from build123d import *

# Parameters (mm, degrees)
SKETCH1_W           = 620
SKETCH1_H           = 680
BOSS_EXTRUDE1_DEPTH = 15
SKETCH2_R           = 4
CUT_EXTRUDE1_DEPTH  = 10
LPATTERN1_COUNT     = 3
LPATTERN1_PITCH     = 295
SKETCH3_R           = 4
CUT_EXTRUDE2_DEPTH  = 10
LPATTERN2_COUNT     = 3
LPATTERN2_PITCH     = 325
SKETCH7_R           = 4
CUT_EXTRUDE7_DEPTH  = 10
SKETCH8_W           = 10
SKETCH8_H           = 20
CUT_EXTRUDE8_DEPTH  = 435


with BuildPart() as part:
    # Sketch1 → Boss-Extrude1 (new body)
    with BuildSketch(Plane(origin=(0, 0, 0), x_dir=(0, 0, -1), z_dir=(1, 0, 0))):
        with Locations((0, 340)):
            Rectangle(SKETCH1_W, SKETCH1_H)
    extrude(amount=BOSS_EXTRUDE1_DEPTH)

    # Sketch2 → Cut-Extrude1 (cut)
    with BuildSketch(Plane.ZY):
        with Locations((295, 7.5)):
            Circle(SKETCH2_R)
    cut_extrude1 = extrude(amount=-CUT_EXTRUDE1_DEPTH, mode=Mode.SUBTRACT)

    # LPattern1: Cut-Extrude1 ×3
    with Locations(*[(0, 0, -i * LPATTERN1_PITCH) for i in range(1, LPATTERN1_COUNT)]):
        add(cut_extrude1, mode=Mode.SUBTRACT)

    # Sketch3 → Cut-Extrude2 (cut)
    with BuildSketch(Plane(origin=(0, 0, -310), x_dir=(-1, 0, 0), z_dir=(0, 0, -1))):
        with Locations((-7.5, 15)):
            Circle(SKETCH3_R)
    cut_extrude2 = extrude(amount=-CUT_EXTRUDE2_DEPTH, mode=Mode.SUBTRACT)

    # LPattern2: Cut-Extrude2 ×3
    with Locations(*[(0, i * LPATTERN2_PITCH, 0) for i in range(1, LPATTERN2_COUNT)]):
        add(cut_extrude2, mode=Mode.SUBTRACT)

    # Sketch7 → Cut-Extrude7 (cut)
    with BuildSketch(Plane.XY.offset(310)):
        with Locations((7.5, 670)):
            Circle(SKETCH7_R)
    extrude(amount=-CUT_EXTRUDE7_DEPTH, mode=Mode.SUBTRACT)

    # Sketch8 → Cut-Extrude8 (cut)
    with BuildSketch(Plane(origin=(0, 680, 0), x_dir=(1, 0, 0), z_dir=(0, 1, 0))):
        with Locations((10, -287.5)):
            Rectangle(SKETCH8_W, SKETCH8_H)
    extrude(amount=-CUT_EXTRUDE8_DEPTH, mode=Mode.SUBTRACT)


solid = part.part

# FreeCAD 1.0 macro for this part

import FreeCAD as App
import Part
import Sketcher
from FreeCAD import Vector
Q = App.Units.Quantity

doc = App.newDocument("Part")
params = doc.addObject("Spreadsheet::Sheet", "Params")
for row, (alias, value) in enumerate([
    ("sketch1_width", "680 mm"),
    ("sketch1_height", "620 mm"),
    ("pad1_length", "15 mm"),
    ("sketch2_diameter", "8 mm"),
    ("pocket1_length", "10 mm"),
    ("linearpattern_pitch", "295 mm"),
    ("sketch3_diameter", "8 mm"),
    ("pocket2_length", "10 mm"),
    ("linearpattern2_pitch", "325 mm"),
    ("sketch4_diameter", "8 mm"),
    ("pocket3_length", "10 mm"),
    ("sketch5_width", "10 mm"),
    ("sketch5_height", "20 mm"),
    ("pocket4_length", "435 mm"),
], start=1):
    params.set(f"A{row}", alias)
    params.set(f"B{row}", "=" + value)
    params.setAlias(f"B{row}", alias)

body = doc.addObject("PartDesign::Body", "Body")

# Sketch on YZ plane
sketch1 = body.newObject("Sketcher::SketchObject", "Sketch")
sketch1.AttachmentSupport = (doc.getObject("YZ_Plane"), [""])
sketch1.MapMode = "FlatFace"
sketch1.addGeometry(Part.LineSegment(Vector(680, 310, 0), Vector(0, 310, 0)), False)
sketch1.addGeometry(Part.LineSegment(Vector(0, 310, 0), Vector(0, -310, 0)), False)
sketch1.addGeometry(Part.LineSegment(Vector(0, -310, 0), Vector(680, -310, 0)), False)
sketch1.addGeometry(Part.LineSegment(Vector(680, -310, 0), Vector(680, 310, 0)), False)
sketch1.addConstraint(Sketcher.Constraint("Coincident", 0, 2, 1, 1))
sketch1.addConstraint(Sketcher.Constraint("Coincident", 1, 2, 2, 1))
sketch1.addConstraint(Sketcher.Constraint("Coincident", 2, 2, 3, 1))
sketch1.addConstraint(Sketcher.Constraint("Coincident", 3, 2, 0, 1))
sketch1.addConstraint(Sketcher.Constraint("Horizontal", 0))
sketch1.addConstraint(Sketcher.Constraint("Vertical", 1))
sketch1.addConstraint(Sketcher.Constraint("Horizontal", 2))
sketch1.addConstraint(Sketcher.Constraint("Vertical", 3))
sketch1.addConstraint(Sketcher.Constraint("Symmetric", 0, 2, 1, 2, -1, 1))
sketch1.addConstraint(Sketcher.Constraint("DistanceX", 0, 2, 0, 1, Q("680 mm")))
sketch1.addConstraint(Sketcher.Constraint("DistanceY", 1, 2, 1, 1, Q("620 mm")))
sketch1.setExpression("Constraints[9]", "Params.sketch1_width")
sketch1.setExpression("Constraints[10]", "Params.sketch1_height")
pad1 = body.newObject("PartDesign::Pad", "Pad")
pad1.Profile = sketch1
pad1.setExpression("Length", "Params.pad1_length")

# Sketch on YZ plane
sketch2 = body.newObject("Sketcher::SketchObject", "Sketch001")
sketch2.AttachmentSupport = (doc.getObject("YZ_Plane"), [""])
sketch2.MapMode = "FlatFace"
sketch2.addGeometry(Part.Circle(Vector(7.5, 295, 0), Vector(0, 0, 1), 4), False)
sketch2.addConstraint(Sketcher.Constraint("Diameter", 0, Q("8 mm")))
sketch2.addConstraint(Sketcher.Constraint("DistanceY", -1, 1, 0, 3, Q("295 mm")))
sketch2.addConstraint(Sketcher.Constraint("DistanceX", -1, 1, 0, 3, Q("7.5 mm")))
sketch2.setExpression("Constraints[0]", "Params.sketch2_diameter")
pocket1 = body.newObject("PartDesign::Pocket", "Pocket")
pocket1.Profile = sketch2
pocket1.setExpression("Length", "Params.pocket1_length")
pocket1.Reversed = True
doc.recompute()

linearpattern = body.newObject("PartDesign::LinearPattern", "LinearPattern")
linearpattern.Originals = [pocket1]
linearpattern.Direction = (doc.getObject("Z_Axis"), [""])
linearpattern.Mode = "offset"
linearpattern.setExpression("Offset", "Params.linearpattern_pitch")
linearpattern.Occurrences = 3
linearpattern.Reversed = True
body.Tip = linearpattern

# Sketch on XY plane
sketch3 = body.newObject("Sketcher::SketchObject", "Sketch002")
sketch3.AttachmentSupport = (doc.getObject("XY_Plane"), [""])
sketch3.MapMode = "FlatFace"
sketch3.AttachmentOffset = App.Placement(Vector(0, 0, -310), App.Rotation())
sketch3.addGeometry(Part.Circle(Vector(7.5, 15, 0), Vector(0, 0, 1), 4), False)
sketch3.addConstraint(Sketcher.Constraint("Diameter", 0, Q("8 mm")))
sketch3.addConstraint(Sketcher.Constraint("DistanceY", -1, 1, 0, 3, Q("15 mm")))
sketch3.addConstraint(Sketcher.Constraint("DistanceX", -1, 1, 0, 3, Q("7.5 mm")))
sketch3.setExpression("Constraints[0]", "Params.sketch3_diameter")
pocket2 = body.newObject("PartDesign::Pocket", "Pocket001")
pocket2.Profile = sketch3
pocket2.setExpression("Length", "Params.pocket2_length")
pocket2.Reversed = True
doc.recompute()

linearpattern2 = body.newObject("PartDesign::LinearPattern", "LinearPattern001")
linearpattern2.Originals = [pocket2]
linearpattern2.Direction = (doc.getObject("Y_Axis"), [""])
linearpattern2.Mode = "offset"
linearpattern2.setExpression("Offset", "Params.linearpattern2_pitch")
linearpattern2.Occurrences = 3
body.Tip = linearpattern2

# Sketch on XY plane
sketch4 = body.newObject("Sketcher::SketchObject", "Sketch003")
sketch4.AttachmentSupport = (doc.getObject("XY_Plane"), [""])
sketch4.MapMode = "FlatFace"
sketch4.AttachmentOffset = App.Placement(Vector(0, 0, 310), App.Rotation())
sketch4.addGeometry(Part.Circle(Vector(7.5, 670, 0), Vector(0, 0, 1), 4), False)
sketch4.addConstraint(Sketcher.Constraint("Diameter", 0, Q("8 mm")))
sketch4.addConstraint(Sketcher.Constraint("DistanceY", -1, 1, 0, 3, Q("670 mm")))
sketch4.addConstraint(Sketcher.Constraint("DistanceX", -1, 1, 0, 3, Q("7.5 mm")))
sketch4.setExpression("Constraints[0]", "Params.sketch4_diameter")
pocket3 = body.newObject("PartDesign::Pocket", "Pocket002")
pocket3.Profile = sketch4
pocket3.setExpression("Length", "Params.pocket3_length")

# Sketch on XZ plane
sketch5 = body.newObject("Sketcher::SketchObject", "Sketch004")
sketch5.AttachmentSupport = (doc.getObject("XZ_Plane"), [""])
sketch5.MapMode = "FlatFace"
sketch5.AttachmentOffset = App.Placement(Vector(0, 0, -680), App.Rotation())
sketch5.addGeometry(Part.LineSegment(Vector(5, 278, 0), Vector(5, 298, 0)), False)
sketch5.addGeometry(Part.LineSegment(Vector(5, 298, 0), Vector(15, 298, 0)), False)
sketch5.addGeometry(Part.LineSegment(Vector(15, 298, 0), Vector(15, 278, 0)), False)
sketch5.addGeometry(Part.LineSegment(Vector(15, 278, 0), Vector(5, 278, 0)), False)
sketch5.addConstraint(Sketcher.Constraint("Coincident", 0, 2, 1, 1))
sketch5.addConstraint(Sketcher.Constraint("Coincident", 1, 2, 2, 1))
sketch5.addConstraint(Sketcher.Constraint("Coincident", 2, 2, 3, 1))
sketch5.addConstraint(Sketcher.Constraint("Coincident", 3, 2, 0, 1))
sketch5.addConstraint(Sketcher.Constraint("Vertical", 0))
sketch5.addConstraint(Sketcher.Constraint("Horizontal", 1))
sketch5.addConstraint(Sketcher.Constraint("Vertical", 2))
sketch5.addConstraint(Sketcher.Constraint("Horizontal", 3))
sketch5.addConstraint(Sketcher.Constraint("DistanceX", 1, 1, 1, 2, Q("10 mm")))
sketch5.addConstraint(Sketcher.Constraint("DistanceY", 0, 1, 0, 2, Q("20 mm")))
sketch5.addConstraint(Sketcher.Constraint("DistanceX", -1, 1, 0, 2, Q("5 mm")))
sketch5.addConstraint(Sketcher.Constraint("DistanceY", -1, 1, 0, 2, Q("297.5 mm")))
sketch5.setExpression("Constraints[8]", "Params.sketch5_width")
sketch5.setExpression("Constraints[9]", "Params.sketch5_height")
pocket4 = body.newObject("PartDesign::Pocket", "Pocket003")
pocket4.Profile = sketch5
pocket4.setExpression("Length", "Params.pocket4_length")
pocket4.Reversed = True

doc.recompute()
